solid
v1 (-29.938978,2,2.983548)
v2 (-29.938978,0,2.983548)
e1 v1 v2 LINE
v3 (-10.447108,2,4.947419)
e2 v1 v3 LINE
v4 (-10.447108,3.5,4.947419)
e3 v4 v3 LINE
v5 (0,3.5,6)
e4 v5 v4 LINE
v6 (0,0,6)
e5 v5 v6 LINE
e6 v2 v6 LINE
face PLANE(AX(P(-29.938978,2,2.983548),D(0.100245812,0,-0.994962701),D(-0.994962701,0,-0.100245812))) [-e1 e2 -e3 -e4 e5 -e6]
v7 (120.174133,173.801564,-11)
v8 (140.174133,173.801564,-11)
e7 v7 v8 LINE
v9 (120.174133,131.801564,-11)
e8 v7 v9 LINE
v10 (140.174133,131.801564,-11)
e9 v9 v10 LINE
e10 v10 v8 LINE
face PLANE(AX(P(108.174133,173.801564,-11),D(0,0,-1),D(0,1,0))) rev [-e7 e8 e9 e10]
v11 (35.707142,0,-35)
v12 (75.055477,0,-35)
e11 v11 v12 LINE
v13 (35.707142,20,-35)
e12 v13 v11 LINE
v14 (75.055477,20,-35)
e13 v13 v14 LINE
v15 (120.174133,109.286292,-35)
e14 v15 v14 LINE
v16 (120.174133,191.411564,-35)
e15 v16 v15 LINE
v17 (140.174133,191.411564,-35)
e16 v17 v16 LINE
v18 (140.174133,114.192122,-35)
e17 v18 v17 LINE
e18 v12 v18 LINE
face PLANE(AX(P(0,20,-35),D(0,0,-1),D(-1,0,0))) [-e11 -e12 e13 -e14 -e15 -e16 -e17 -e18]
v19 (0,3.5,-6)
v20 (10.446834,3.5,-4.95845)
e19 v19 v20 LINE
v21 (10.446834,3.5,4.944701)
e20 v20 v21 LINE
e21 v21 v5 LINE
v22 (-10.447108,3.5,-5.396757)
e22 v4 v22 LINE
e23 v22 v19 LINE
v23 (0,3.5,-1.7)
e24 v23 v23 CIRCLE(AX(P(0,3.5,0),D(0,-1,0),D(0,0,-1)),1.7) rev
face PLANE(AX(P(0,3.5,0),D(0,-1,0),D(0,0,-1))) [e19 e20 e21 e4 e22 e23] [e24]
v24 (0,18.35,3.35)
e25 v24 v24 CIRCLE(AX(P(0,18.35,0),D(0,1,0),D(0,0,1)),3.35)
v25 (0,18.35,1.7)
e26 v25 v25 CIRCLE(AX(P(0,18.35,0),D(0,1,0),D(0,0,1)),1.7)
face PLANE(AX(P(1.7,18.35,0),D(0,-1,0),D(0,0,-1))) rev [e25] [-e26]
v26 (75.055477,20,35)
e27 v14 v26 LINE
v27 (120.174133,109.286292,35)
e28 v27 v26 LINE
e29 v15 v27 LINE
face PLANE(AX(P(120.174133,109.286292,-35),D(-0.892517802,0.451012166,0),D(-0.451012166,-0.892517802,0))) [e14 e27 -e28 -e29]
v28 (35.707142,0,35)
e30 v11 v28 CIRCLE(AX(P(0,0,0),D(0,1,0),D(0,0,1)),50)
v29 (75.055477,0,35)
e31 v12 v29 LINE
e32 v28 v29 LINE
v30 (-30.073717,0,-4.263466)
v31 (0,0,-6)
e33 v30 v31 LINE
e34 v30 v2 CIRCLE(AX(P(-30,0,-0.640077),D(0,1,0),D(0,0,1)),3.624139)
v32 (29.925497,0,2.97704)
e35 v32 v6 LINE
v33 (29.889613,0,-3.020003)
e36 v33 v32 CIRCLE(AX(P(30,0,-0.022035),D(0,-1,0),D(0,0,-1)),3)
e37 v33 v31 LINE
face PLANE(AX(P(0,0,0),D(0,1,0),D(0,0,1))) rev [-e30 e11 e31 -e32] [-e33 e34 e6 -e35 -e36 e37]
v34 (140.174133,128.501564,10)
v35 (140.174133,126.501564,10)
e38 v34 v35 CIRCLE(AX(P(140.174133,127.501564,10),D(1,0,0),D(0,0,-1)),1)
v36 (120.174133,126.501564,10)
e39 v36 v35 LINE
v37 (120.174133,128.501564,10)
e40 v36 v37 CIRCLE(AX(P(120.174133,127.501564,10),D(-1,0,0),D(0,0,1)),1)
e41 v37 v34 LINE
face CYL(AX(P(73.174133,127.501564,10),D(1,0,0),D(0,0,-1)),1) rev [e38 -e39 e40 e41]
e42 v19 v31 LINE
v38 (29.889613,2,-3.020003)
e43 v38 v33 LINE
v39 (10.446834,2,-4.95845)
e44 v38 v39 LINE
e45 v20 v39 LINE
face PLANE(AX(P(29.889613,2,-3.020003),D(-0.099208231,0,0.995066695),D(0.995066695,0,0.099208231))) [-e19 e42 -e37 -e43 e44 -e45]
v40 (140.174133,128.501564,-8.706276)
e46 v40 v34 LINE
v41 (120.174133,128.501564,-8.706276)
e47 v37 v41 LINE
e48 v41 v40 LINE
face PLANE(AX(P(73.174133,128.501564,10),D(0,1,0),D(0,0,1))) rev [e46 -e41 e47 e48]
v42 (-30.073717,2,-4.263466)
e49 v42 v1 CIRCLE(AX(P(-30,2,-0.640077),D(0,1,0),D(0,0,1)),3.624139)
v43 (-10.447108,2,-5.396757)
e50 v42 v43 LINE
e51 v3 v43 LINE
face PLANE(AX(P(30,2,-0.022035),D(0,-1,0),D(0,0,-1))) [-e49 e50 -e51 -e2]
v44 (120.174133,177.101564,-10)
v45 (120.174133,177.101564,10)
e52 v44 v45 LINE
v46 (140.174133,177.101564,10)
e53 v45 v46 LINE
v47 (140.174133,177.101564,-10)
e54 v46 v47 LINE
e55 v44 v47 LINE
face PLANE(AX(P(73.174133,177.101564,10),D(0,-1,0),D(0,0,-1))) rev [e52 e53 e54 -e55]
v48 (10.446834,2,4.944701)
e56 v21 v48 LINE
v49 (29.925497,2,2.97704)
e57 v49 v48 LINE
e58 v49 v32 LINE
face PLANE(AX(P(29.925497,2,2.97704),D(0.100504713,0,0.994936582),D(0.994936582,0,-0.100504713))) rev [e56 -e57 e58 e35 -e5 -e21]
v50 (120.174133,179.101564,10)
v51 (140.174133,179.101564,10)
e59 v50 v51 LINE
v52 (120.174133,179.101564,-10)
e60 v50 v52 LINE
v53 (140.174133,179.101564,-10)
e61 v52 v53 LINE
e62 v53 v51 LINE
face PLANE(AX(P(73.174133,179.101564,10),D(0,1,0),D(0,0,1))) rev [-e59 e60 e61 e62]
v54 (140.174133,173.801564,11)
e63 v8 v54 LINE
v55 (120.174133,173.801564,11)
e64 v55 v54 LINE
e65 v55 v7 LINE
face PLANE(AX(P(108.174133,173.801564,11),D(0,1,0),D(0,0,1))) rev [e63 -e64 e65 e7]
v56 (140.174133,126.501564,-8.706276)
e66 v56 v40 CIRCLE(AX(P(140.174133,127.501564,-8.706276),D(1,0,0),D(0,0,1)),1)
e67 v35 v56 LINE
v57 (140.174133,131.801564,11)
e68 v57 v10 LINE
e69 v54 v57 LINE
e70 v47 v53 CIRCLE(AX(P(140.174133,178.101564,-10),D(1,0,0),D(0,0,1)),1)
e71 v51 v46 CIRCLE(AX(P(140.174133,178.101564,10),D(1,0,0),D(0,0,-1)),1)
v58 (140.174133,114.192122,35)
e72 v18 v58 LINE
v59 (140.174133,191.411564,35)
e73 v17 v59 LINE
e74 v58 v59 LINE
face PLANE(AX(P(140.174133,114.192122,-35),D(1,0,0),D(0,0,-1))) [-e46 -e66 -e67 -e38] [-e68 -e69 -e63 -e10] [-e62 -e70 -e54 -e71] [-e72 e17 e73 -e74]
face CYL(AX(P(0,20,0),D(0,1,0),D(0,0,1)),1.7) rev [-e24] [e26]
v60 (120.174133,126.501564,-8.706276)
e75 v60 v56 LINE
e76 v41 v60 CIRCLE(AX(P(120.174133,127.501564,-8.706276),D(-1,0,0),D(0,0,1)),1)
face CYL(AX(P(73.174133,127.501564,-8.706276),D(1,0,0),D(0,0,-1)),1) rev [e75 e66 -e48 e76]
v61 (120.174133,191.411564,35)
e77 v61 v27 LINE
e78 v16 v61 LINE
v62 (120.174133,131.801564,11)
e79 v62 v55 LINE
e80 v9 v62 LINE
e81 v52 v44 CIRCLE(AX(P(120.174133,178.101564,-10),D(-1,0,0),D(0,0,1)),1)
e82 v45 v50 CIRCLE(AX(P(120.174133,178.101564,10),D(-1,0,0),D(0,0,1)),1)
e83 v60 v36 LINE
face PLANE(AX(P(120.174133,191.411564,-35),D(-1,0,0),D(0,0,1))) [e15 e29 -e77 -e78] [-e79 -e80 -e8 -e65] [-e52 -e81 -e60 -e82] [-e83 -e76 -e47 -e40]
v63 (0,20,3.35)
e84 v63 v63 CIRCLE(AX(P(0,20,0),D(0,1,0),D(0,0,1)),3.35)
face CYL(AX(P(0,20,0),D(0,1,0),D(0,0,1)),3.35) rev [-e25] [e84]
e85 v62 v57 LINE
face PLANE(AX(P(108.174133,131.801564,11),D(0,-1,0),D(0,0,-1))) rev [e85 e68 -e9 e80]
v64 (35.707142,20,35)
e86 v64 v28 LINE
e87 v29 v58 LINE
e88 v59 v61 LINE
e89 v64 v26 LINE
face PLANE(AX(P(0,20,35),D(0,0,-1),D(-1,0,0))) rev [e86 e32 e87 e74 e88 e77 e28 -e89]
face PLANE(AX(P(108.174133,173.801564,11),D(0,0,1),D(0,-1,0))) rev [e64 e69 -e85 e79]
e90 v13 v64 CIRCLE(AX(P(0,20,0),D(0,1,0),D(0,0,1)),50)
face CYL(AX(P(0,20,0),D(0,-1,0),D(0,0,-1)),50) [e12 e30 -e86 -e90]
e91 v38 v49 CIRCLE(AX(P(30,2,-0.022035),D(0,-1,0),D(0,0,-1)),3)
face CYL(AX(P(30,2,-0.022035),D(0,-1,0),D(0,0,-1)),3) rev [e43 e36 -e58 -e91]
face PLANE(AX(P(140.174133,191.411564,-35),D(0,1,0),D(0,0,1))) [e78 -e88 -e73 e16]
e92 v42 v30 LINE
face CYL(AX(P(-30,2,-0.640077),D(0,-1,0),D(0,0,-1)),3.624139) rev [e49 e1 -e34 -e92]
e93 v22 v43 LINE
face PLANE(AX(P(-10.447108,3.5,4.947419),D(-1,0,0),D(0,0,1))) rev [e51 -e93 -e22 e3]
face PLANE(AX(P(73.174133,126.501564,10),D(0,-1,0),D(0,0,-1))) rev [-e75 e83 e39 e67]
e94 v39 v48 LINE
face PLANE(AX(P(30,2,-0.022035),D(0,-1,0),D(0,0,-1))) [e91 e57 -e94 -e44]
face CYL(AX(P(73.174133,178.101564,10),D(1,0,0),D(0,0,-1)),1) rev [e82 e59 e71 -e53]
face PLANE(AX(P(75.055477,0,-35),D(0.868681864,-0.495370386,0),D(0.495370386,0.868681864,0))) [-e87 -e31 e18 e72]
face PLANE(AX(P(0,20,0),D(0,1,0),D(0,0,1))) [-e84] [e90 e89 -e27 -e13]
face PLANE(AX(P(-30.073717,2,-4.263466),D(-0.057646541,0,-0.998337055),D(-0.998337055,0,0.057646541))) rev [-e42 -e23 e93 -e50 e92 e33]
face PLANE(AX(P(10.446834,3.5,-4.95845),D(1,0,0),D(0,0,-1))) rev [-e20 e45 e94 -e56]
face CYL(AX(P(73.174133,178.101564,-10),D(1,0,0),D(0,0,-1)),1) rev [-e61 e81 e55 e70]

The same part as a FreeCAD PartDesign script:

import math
import FreeCAD as App
import Part
import Sketcher


def add_polygon(sketch, points):
    """Adds a closed chain of lines whose ends are joined by coincident constraints."""
    first, n = sketch.GeometryCount, len(points)
    for a, b in zip(points, points[1:] + points[:1]):
        sketch.addGeometry(Part.LineSegment(App.Vector(*a, 0), App.Vector(*b, 0)), False)
    for i in range(n):
        sketch.addConstraint(Sketcher.Constraint("Coincident", first + i, 2, first + (i + 1) % n, 1))

doc = App.newDocument("Part")
body = doc.addObject("PartDesign::Body", "Body")

# Sketch on XZ plane
sketch1 = body.newObject("Sketcher::SketchObject", "Sketch")
sketch1.AttachmentSupport = (doc.getObject("XZ_Plane"), [""])
sketch1.MapMode = "FlatFace"
sketch1.addGeometry([
    Part.LineSegment(App.Vector(36, 35, 0), App.Vector(75, 35, 0)),
    Part.LineSegment(App.Vector(75, 35, 0), App.Vector(75, -35, 0)),
    Part.LineSegment(App.Vector(75, -35, 0), App.Vector(36, -35, 0)),
    Part.ArcOfCircle(Part.Circle(App.Vector(0, 0, 0), App.Vector(0, 0, 1), 50), math.radians(44), math.radians(316)),
], False)
sketch1.addConstraint([
    Sketcher.Constraint("Coincident", 0, 2, 1, 1),
    Sketcher.Constraint("Coincident", 1, 2, 2, 1),
    Sketcher.Constraint("Coincident", 2, 2, 3, 2),
    Sketcher.Constraint("Coincident", 3, 1, 0, 1),
    Sketcher.Constraint("Horizontal", 0),
    Sketcher.Constraint("Vertical", 1),
    Sketcher.Constraint("Horizontal", 2),
    Sketcher.Constraint("Coincident", 3, 3, -1, 1),
    Sketcher.Constraint("Vertical", 2, 2, 3, 1),
    Sketcher.Constraint("Radius", 3, 50.0),
    Sketcher.Constraint("DistanceY", 1, 2, 1, 1, 70.0),
    Sketcher.Constraint("DistanceX", 0, 1, 0, 2, 39.348335),
])
pad1 = body.newObject("PartDesign::Pad", "Pad")
pad1.Profile = sketch1
pad1.Length = 20
pad1.Reversed = True

# Sketch on XY plane
sketch2 = body.newObject("Sketcher::SketchObject", "Sketch001")
sketch2.AttachmentSupport = (doc.getObject("XY_Plane"), [""])
sketch2.MapMode = "FlatFace"
sketch2.AttachmentOffset = App.Placement(App.Vector(0, 0, 35), App.Rotation())
add_polygon(sketch2, [(75, 0), (140, 114), (140, 191), (120, 191), (120, 109), (75, 20)])  # lines 0-5
sketch2.addConstraint([
    Sketcher.Constraint("Vertical", 1),
    Sketcher.Constraint("Horizontal", 2),
    Sketcher.Constraint("Vertical", 3),
    Sketcher.Constraint("Vertical", 5),
    Sketcher.Constraint("PointOnObject", 5, 2, -1),
    Sketcher.Constraint("Equal", 2, 5),
    Sketcher.Constraint("DistanceX", 2, 2, 2, 1, 20.0),
    Sketcher.Constraint("DistanceY", 1, 1, 1, 2, 77.219442),
    Sketcher.Constraint("DistanceY", 3, 2, 3, 1, 82.125272),
    Sketcher.Constraint("Distance", 0, 131.45448),
    Sketcher.Constraint("Distance", 4, 100.038668),
    Sketcher.Constraint("DistanceX", -1, 1, 0, 2, 140.174133),
])
pad2 = body.newObject("PartDesign::Pad", "Pad001")
pad2.Profile = sketch2
pad2.Length = 70
pad2.Reversed = True

# Sketch on XZ plane
sketch3 = body.newObject("Sketcher::SketchObject", "Sketch002")
sketch3.AttachmentSupport = (doc.getObject("XZ_Plane"), [""])
sketch3.MapMode = "FlatFace"
sketch3.AttachmentOffset = App.Placement(App.Vector(0, 0, -20), App.Rotation())
sketch3.addGeometry(Part.Circle(App.Vector(0, 0, 0), App.Vector(0, 0, 1), 1.7), False)
sketch3.addConstraint([
    Sketcher.Constraint("Coincident", 0, 3, -1, 1),
    Sketcher.Constraint("Diameter", 0, 3.4),
])
doc.recompute()
hole = body.newObject("PartDesign::Hole", "Hole")
hole.Profile = sketch3
hole.ThreadType = "None"
hole.Diameter = 3.4
hole.DepthType = "ThroughAll"
hole.HoleCutType = "Counterbore"
hole.HoleCutDiameter = 6.7
hole.HoleCutDepth = 1.65
hole.Reversed = True

# Sketch on YZ plane
sketch4 = body.newObject("Sketcher::SketchObject", "Sketch003")
sketch4.AttachmentSupport = (doc.getObject("YZ_Plane"), [""])
sketch4.MapMode = "FlatFace"
sketch4.AttachmentOffset = App.Placement(App.Vector(0, 0, 140.174133), App.Rotation())
add_polygon(sketch4, [(174, 11), (132, 11), (132, -11), (174, -11)])  # lines 0-3
sketch4.addConstraint([
    Sketcher.Constraint("Horizontal", 0),
    Sketcher.Constraint("Vertical", 1),
    Sketcher.Constraint("Horizontal", 2),
    Sketcher.Constraint("Vertical", 3),
    Sketcher.Constraint("DistanceX", 0, 2, 0, 1, 42.0),
    Sketcher.Constraint("DistanceY", 1, 2, 1, 1, 22.0),
    Sketcher.Constraint("DistanceY", -1, 1, 0, 2, 11.0),
    Sketcher.Constraint("DistanceX", -1, 1, 0, 2, 131.801564),
])
pocket1 = body.newObject("PartDesign::Pocket", "Pocket")
pocket1.Profile = sketch4
pocket1.Length = 32

# Sketch on YZ plane
sketch5 = body.newObject("Sketcher::SketchObject", "Sketch004")
sketch5.AttachmentSupport = (doc.getObject("YZ_Plane"), [""])
sketch5.MapMode = "FlatFace"
sketch5.AttachmentOffset = App.Placement(App.Vector(0, 0, 140.174133), App.Rotation())
sketch5.addGeometry([
    Part.LineSegment(App.Vector(179.1, -10, 0), App.Vector(179.1, 10, 0)),  # 0
    Part.ArcOfCircle(Part.Circle(App.Vector(178.1, 10, 0), App.Vector(0, 0, 1), 1), math.radians(0), math.radians(180)),  # 1
    Part.LineSegment(App.Vector(177.1, 10, 0), App.Vector(177.1, -10, 0)),  # 2
    Part.ArcOfCircle(Part.Circle(App.Vector(178.1, -10, 0), App.Vector(0, 0, 1), 1), math.radians(180), math.radians(360)),  # 3
    Part.LineSegment(App.Vector(128.5, -8.7, 0), App.Vector(128.5, 10, 0)),  # 4
    Part.ArcOfCircle(Part.Circle(App.Vector(127.5, 10, 0), App.Vector(0, 0, 1), 1), math.radians(0), math.radians(180)),  # 5
    Part.LineSegment(App.Vector(126.5, 10, 0), App.Vector(126.5, -8.7, 0)),  # 6
    Part.ArcOfCircle(Part.Circle(App.Vector(127.5, -8.7, 0), App.Vector(0, 0, 1), 1), math.radians(180), math.radians(360)),  # 7
], False)
sketch5.addConstraint([
    Sketcher.Constraint("Tangent", 0, 2, 1, 1),
    Sketcher.Constraint("Tangent", 1, 2, 2, 1),
    Sketcher.Constraint("Tangent", 2, 2, 3, 1),
    Sketcher.Constraint("Tangent", 3, 2, 0, 1),
    Sketcher.Constraint("Tangent", 4, 2, 5, 1),
    Sketcher.Constraint("Tangent", 5, 2, 6, 1),
    Sketcher.Constraint("Tangent", 6, 2, 7, 1),
    Sketcher.Constraint("Tangent", 7, 2, 4, 1),
    Sketcher.Constraint("Vertical", 0),
    Sketcher.Constraint("Vertical", 2),
    Sketcher.Constraint("Vertical", 4),
    Sketcher.Constraint("Vertical", 6),
    Sketcher.Constraint("Equal", 3, 5),
    Sketcher.Constraint("Horizontal", 1, 3, 5, 3),
    Sketcher.Constraint("Radius", 1, 1.0),
    Sketcher.Constraint("DistanceY", 0, 1, 0, 2, 20.0),
    Sketcher.Constraint("DistanceY", -1, 1, 1, 3, 10.0),
    Sketcher.Constraint("DistanceX", 5, 3, 1, 3, 50.6),
    Sketcher.Constraint("DistanceY", 4, 1, 4, 2, 18.706276),
    Sketcher.Constraint("DistanceX", -1, 1, 1, 3, 178.101564),
])
pocket2 = body.newObject("PartDesign::Pocket", "Pocket001")
pocket2.Profile = sketch5
pocket2.Length = 67

# Sketch on XZ plane
sketch6 = body.newObject("Sketcher::SketchObject", "Sketch005")
sketch6.AttachmentSupport = (doc.getObject("XZ_Plane"), [""])
sketch6.MapMode = "FlatFace"
sketch6.addGeometry([
    Part.LineSegment(App.Vector(0, 6, 0), App.Vector(-29.9, 3, 0)),  # 0
    Part.ArcOfCircle(Part.Circle(App.Vector(-30, -0.6, 0), App.Vector(0, 0, 1), 3.6), math.radians(89), math.radians(269)),  # 1
    Part.LineSegment(App.Vector(-30.1, -4.3, 0), App.Vector(0, -6, 0)),  # 2
    Part.LineSegment(App.Vector(0, -6, 0), App.Vector(29.9, -3, 0)),  # 3
    Part.ArcOfCircle(Part.Circle(App.Vector(30, 0, 0), App.Vector(0, 0, 1), 3), math.radians(-92), math.radians(91)),  # 4
    Part.LineSegment(App.Vector(29.9, 3, 0), App.Vector(0, 6, 0)),  # 5
], False)
sketch6.addConstraint([
    Sketcher.Constraint("Coincident", 0, 2, 1, 1),
    Sketcher.Constraint("Coincident", 1, 2, 2, 1),
    Sketcher.Constraint("Coincident", 2, 2, 3, 1),
    Sketcher.Constraint("Coincident", 3, 2, 4, 1),
    Sketcher.Constraint("Coincident", 4, 2, 5, 1),
    Sketcher.Constraint("Coincident", 5, 2, 0, 1),
    Sketcher.Constraint("Symmetric", 2, 2, 5, 2, -1, 1),
    Sketcher.Constraint("PointOnObject", 2, 2, -2),
    Sketcher.Constraint("Radius", 4, 3.0),
    Sketcher.Constraint("DistanceX", 1, 3, -1, 1, 30.0),
    Sketcher.Constraint("DistanceX", -1, 1, 4, 3, 30.0),
    Sketcher.Constraint("DistanceY", 2, 2, -1, 1, 6.0),
    Sketcher.Constraint("Radius", 1, 3.624139),
    Sketcher.Constraint("Distance", 3, 30.037799),
    Sketcher.Constraint("Distance", 2, 30.123811),
    Sketcher.Constraint("DistanceX", 0, 2, -1, 1, 29.938978),
    Sketcher.Constraint("DistanceY", -1, 1, 0, 2, 2.983548),
    Sketcher.Constraint("DistanceY", -1, 1, 4, 2, 2.97704),
    Sketcher.Constraint("DistanceY", 1, 2, 4, 3, 4.241432),
])
pocket3 = body.newObject("PartDesign::Pocket", "Pocket002")
pocket3.Profile = sketch6
pocket3.Length = 2

# Sketch on XZ plane
sketch7 = body.newObject("Sketcher::SketchObject", "Sketch006")
sketch7.AttachmentSupport = (doc.getObject("XZ_Plane"), [""])
sketch7.MapMode = "FlatFace"
add_polygon(sketch7, [(0, 6), (-10, 5), (-10, -5), (0, -6), (10, -5), (10, 5)])  # lines 0-5
sketch7.addConstraint([
    Sketcher.Constraint("Vertical", 1),
    Sketcher.Constraint("Vertical", 4),
    Sketcher.Constraint("Symmetric", 2, 2, 5, 2, -1, 1),
    Sketcher.Constraint("PointOnObject", 2, 2, -2),
    Sketcher.Constraint("Equal", 0, 5),
    Sketcher.Constraint("DistanceY", 2, 2, -1, 1, 6.0),
    Sketcher.Constraint("Distance", 0, 10.5),
    Sketcher.Constraint("DistanceY", 4, 1, 4, 2, 9.90315),
    Sketcher.Constraint("DistanceY", -1, 1, 4, 2, 4.944701),
    Sketcher.Constraint("Distance", 2, 10.46451),
    Sketcher.Constraint("DistanceY", 1, 2, 1, 1, 10.344176),
])
pocket4 = body.newObject("PartDesign::Pocket", "Pocket003")
pocket4.Profile = sketch7
pocket4.Length = 3.5

doc.recompute()
